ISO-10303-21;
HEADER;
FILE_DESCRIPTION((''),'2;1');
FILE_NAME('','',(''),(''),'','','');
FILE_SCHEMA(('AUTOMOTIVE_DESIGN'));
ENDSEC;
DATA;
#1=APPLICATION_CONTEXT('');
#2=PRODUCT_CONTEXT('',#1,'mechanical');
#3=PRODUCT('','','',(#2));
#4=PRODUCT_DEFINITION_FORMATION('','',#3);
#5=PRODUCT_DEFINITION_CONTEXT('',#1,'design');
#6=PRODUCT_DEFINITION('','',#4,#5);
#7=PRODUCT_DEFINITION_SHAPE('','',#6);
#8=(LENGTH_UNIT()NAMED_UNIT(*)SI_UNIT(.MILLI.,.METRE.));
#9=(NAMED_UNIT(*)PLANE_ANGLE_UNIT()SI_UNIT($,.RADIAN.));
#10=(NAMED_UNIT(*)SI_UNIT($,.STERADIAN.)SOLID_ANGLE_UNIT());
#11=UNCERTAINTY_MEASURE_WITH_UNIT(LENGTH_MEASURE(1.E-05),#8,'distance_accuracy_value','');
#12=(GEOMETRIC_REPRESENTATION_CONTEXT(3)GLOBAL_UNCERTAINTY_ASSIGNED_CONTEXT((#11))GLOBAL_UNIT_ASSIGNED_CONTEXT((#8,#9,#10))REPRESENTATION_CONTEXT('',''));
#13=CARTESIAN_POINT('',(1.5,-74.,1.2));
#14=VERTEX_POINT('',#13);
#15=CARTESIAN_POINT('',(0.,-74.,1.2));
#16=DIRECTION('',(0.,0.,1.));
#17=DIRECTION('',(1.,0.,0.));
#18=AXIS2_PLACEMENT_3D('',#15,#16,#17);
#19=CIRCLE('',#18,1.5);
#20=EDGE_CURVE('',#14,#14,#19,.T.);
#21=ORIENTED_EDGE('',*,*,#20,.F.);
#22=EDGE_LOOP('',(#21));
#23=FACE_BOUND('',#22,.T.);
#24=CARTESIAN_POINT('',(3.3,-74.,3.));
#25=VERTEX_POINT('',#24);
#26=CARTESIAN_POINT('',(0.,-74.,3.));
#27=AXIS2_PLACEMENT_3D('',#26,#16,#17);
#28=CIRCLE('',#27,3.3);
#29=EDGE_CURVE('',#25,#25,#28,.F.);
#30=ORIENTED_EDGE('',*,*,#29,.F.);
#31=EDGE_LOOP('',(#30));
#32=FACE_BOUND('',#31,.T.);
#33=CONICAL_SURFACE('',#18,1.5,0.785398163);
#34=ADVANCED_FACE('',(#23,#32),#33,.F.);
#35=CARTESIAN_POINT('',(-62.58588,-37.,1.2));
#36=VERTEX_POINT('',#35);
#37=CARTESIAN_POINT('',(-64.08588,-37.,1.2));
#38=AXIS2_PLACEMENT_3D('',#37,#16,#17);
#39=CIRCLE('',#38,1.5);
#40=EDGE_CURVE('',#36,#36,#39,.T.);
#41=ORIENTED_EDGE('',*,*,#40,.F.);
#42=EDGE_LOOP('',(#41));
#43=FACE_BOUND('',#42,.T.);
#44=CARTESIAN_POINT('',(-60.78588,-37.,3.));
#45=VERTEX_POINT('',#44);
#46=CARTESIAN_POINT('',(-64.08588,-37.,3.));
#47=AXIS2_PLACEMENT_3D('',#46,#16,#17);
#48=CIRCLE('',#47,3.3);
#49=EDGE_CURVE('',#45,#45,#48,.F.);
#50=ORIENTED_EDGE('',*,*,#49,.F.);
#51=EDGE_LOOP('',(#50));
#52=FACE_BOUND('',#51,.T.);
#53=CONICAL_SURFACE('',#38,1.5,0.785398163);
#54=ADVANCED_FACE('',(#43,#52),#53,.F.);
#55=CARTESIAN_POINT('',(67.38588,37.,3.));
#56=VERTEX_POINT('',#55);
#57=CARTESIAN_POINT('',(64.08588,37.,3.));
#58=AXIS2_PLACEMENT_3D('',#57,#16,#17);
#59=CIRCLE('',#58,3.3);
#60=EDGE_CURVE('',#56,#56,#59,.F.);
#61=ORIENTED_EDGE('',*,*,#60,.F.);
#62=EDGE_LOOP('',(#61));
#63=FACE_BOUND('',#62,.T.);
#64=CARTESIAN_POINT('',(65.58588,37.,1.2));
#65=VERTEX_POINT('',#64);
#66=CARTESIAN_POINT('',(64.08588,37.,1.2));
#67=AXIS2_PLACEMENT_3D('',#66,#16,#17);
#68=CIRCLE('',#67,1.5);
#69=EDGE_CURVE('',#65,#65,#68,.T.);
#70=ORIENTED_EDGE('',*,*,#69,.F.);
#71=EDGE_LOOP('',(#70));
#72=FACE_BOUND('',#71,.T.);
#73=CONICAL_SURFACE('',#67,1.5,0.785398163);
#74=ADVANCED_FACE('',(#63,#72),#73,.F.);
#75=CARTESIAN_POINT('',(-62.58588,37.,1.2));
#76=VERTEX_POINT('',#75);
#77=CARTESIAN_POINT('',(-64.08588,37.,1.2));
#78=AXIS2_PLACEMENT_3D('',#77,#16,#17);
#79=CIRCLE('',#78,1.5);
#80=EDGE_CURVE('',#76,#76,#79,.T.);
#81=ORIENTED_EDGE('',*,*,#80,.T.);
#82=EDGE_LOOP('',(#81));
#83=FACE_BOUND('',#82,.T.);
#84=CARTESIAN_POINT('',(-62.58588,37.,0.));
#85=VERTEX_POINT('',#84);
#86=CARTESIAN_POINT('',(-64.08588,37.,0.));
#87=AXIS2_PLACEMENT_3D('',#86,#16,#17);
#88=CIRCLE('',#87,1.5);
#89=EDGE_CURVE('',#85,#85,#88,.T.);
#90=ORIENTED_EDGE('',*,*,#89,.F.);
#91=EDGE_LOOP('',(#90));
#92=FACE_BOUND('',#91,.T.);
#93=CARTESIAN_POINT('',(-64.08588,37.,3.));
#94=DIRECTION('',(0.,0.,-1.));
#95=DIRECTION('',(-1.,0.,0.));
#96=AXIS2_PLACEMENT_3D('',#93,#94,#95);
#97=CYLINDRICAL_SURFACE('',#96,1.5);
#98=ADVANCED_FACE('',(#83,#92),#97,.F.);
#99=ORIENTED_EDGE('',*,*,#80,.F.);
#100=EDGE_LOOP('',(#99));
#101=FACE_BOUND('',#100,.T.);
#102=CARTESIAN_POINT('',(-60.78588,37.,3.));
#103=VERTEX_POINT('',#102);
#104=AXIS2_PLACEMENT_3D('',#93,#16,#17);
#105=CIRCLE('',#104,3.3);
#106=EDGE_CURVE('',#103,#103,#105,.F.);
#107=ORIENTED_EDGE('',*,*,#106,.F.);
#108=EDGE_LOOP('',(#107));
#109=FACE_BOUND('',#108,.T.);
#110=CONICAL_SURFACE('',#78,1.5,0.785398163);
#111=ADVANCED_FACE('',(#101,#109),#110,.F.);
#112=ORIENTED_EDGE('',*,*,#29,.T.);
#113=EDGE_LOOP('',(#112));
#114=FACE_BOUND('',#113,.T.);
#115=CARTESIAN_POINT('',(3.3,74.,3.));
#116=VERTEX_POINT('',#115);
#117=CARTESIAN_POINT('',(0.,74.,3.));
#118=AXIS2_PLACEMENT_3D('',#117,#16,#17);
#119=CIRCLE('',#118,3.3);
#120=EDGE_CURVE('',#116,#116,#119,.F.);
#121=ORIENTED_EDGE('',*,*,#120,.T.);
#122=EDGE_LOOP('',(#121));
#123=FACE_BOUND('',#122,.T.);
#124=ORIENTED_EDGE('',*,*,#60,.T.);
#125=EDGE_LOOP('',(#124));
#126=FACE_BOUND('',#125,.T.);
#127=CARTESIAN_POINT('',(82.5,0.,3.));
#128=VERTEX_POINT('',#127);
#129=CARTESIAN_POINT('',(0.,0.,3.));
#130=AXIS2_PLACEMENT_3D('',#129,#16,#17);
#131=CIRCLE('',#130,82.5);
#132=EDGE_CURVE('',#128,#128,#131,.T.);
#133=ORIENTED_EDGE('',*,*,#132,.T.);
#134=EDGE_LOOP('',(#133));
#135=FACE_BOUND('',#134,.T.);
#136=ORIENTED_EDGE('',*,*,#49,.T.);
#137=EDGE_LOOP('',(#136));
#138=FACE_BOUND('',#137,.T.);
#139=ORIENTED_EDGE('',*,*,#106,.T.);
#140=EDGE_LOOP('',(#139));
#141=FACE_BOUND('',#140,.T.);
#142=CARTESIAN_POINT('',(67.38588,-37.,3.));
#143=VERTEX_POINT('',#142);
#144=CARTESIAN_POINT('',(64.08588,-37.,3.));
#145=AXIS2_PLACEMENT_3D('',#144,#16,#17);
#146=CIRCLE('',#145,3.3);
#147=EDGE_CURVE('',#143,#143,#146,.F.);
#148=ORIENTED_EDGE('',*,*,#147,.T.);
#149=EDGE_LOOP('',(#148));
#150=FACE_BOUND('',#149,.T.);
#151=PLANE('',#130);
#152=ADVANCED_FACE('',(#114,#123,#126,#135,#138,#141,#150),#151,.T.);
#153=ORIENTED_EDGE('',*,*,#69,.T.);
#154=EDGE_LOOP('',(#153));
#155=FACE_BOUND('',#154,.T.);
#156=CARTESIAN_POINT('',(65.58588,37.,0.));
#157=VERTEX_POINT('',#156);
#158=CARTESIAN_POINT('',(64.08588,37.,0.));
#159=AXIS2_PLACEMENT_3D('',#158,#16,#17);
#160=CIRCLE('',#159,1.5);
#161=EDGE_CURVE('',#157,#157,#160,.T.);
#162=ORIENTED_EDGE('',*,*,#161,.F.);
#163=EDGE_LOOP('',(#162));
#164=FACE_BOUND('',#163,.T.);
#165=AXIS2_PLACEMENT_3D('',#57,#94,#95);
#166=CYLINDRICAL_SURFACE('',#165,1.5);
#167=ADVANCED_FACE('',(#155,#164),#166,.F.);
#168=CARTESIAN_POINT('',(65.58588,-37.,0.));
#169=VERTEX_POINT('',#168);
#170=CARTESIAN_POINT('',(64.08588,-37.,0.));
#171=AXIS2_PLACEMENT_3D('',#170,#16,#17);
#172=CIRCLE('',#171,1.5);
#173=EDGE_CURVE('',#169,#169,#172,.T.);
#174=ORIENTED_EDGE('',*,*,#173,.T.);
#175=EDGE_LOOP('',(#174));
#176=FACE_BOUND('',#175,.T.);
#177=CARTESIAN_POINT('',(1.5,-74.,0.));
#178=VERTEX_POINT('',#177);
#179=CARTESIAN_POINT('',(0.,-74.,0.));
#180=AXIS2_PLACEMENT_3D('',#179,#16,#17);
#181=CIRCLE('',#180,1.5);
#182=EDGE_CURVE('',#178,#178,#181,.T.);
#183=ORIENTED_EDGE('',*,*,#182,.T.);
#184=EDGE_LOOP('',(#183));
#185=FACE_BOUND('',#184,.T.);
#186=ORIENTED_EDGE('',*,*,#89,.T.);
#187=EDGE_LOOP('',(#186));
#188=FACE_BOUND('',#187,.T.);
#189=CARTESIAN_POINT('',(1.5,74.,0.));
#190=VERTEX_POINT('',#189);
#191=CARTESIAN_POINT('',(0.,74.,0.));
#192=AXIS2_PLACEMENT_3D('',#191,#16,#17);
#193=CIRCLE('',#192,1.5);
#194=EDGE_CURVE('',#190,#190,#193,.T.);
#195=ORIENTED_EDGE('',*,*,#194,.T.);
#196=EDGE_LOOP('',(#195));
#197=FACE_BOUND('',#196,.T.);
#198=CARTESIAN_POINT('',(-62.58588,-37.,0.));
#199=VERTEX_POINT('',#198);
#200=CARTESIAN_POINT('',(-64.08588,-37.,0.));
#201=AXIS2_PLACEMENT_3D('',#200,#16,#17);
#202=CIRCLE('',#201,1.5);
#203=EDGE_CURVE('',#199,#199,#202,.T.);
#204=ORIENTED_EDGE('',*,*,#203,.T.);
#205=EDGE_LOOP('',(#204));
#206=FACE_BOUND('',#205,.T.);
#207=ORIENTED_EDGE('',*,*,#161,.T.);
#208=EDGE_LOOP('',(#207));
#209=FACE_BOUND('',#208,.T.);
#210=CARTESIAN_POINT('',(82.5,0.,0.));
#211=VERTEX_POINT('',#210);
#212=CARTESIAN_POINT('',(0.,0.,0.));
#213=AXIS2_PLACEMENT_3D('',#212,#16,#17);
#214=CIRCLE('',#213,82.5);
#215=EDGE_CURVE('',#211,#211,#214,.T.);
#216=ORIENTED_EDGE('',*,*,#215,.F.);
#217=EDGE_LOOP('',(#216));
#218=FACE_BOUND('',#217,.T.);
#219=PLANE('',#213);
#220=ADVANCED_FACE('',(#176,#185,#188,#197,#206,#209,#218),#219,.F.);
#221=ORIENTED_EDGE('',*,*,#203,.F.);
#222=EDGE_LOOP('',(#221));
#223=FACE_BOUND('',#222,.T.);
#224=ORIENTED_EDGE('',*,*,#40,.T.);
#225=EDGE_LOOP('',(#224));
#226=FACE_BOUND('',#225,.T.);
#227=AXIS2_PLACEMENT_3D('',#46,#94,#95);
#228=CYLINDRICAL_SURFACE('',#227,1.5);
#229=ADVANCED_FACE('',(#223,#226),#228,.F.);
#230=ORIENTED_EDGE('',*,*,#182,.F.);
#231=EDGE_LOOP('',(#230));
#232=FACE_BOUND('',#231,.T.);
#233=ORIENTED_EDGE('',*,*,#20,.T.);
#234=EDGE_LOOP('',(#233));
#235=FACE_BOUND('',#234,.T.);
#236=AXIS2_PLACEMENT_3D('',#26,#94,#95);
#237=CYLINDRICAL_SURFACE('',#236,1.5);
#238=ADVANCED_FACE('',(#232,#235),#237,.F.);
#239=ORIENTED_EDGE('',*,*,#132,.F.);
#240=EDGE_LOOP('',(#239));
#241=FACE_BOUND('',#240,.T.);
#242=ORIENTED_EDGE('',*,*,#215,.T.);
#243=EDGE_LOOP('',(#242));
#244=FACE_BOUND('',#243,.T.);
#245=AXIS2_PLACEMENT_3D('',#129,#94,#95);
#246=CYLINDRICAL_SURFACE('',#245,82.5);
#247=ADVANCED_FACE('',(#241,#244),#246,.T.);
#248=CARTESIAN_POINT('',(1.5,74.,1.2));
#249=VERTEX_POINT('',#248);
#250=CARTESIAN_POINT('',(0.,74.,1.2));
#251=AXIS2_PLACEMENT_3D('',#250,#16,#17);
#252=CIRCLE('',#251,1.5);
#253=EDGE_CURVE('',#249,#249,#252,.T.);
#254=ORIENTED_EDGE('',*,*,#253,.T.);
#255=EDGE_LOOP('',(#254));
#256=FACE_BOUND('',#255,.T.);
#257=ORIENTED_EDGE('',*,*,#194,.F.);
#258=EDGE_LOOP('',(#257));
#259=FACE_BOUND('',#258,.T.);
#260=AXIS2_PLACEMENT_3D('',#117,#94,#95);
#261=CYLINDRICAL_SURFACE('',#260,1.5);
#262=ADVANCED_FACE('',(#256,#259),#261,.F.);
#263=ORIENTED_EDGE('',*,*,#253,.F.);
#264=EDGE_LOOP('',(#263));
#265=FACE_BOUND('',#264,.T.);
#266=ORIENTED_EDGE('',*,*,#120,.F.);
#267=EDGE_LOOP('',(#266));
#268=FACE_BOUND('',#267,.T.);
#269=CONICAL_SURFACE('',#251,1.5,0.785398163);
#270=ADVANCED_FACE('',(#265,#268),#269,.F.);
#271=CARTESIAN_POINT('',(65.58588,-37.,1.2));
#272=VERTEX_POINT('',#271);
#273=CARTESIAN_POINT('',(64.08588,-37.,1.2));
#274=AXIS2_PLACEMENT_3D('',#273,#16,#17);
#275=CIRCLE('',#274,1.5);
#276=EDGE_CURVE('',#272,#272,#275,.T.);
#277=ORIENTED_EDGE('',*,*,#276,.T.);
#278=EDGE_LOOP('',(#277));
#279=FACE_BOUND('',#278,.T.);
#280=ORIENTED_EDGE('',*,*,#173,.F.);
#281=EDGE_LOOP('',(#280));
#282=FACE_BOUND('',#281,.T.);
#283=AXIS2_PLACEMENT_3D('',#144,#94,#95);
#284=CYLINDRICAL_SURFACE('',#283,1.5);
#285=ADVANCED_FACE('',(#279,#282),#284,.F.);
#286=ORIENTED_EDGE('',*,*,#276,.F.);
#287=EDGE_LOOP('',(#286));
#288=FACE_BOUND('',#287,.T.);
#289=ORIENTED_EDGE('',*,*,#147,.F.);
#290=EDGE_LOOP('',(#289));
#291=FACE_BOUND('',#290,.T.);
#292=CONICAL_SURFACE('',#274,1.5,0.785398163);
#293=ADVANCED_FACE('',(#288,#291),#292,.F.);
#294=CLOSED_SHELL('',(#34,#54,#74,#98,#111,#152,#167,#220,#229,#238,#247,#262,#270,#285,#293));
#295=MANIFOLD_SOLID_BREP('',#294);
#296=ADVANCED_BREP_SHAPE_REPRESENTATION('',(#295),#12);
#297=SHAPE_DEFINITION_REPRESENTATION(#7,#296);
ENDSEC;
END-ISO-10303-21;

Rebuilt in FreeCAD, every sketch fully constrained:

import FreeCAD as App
import Part
import Sketcher
from FreeCAD import Vector


def edges_at(feature, points):
    """Names of the edges that pass closest to the given points."""
    edges = feature.Shape.Edges
    near = lambda p: min(range(len(edges)), key=lambda i: edges[i].distToShape(Part.Vertex(*p))[0])
    return sorted({f"Edge{near(p) + 1}" for p in points})

doc = App.newDocument("Part")
params = doc.addObject("Spreadsheet::Sheet", "Params")
for row, (alias, value) in enumerate([
    ("sketch1_diameter", "165 mm"),
    ("sketch1_diameter2", "3 mm"),
    ("pad1_length", "3 mm"),
    ("chamfer_size", "1.8 mm"),
], start=1):
    params.set(f"A{row}", alias)
    params.set(f"B{row}", "=" + value)
    params.setAlias(f"B{row}", alias)

body = doc.addObject("PartDesign::Body", "Body")

# Sketch on XY plane
sketch1 = body.newObject("Sketcher::SketchObject", "Sketch")
sketch1.AttachmentSupport = (doc.getObject("XY_Plane"), [""])
sketch1.MapMode = "FlatFace"
sketch1.addGeometry(Part.Circle(Vector(0, 0, 0), Vector(0, 0, 1), 82.5), False)
sketch1.addGeometry(Part.Circle(Vector(-64.1, -37, 0), Vector(0, 0, 1), 1.5), False)
sketch1.addGeometry(Part.Circle(Vector(0, -74, 0), Vector(0, 0, 1), 1.5), False)
sketch1.addGeometry(Part.Circle(Vector(64.1, -37, 0), Vector(0, 0, 1), 1.5), False)
sketch1.addGeometry(Part.Circle(Vector(-64.1, 37, 0), Vector(0, 0, 1), 1.5), False)
sketch1.addGeometry(Part.Circle(Vector(64.1, 37, 0), Vector(0, 0, 1), 1.5), False)
sketch1.addGeometry(Part.Circle(Vector(0, 74, 0), Vector(0, 0, 1), 1.5), False)
sketch1.addConstraint(Sketcher.Constraint("Coincident", 0, 3, -1, 1))
sketch1.addConstraint(Sketcher.Constraint("Equal", 1, 2))
sketch1.addConstraint(Sketcher.Constraint("Equal", 2, 3))
sketch1.addConstraint(Sketcher.Constraint("Equal", 3, 4))
sketch1.addConstraint(Sketcher.Constraint("Equal", 4, 5))
sketch1.addConstraint(Sketcher.Constraint("Equal", 5, 6))
sketch1.addConstraint(Sketcher.Constraint("Symmetric", 3, 3, 4, 3, -1, 1))
sketch1.addConstraint(Sketcher.Constraint("Symmetric", 1, 3, 5, 3, -1, 1))
sketch1.addConstraint(Sketcher.Constraint("Symmetric", 2, 3, 6, 3, -1, 1))
sketch1.addConstraint(Sketcher.Constraint("Symmetric", 1, 3, 3, 3, -2))
sketch1.addConstraint(Sketcher.Constraint("PointOnObject", 2, 3, -2))
sketch1.addConstraint(Sketcher.Constraint("Diameter", 0, 165.0))
sketch1.addConstraint(Sketcher.Constraint("Diameter", 1, 3.0))
sketch1.addConstraint(Sketcher.Constraint("DistanceY", 1, 3, -1, 1, 37.0))
sketch1.addConstraint(Sketcher.Constraint("DistanceY", 2, 3, -1, 1, 74.0))
sketch1.addConstraint(Sketcher.Constraint("DistanceX", 1, 3, -1, 1, 64.08588))
sketch1.setExpression("Constraints[11]", "Params.sketch1_diameter")
sketch1.setExpression("Constraints[12]", "Params.sketch1_diameter2")
pad1 = body.newObject("PartDesign::Pad", "Pad")
pad1.Profile = sketch1
pad1.setExpression("Length", "Params.pad1_length")
doc.recompute()

chamfer = body.newObject("PartDesign::Chamfer", "Chamfer")
chamfer.Base = (pad1, edges_at(pad1, [
    (62.586, 37, 3),
    (62.586, -37, 3),
    (-65.586, -37, 3),
    (-65.586, 37, 3),
    (-1.5, 74, 3),
    (-1.5, -74, 3),
]))
chamfer.setExpression("Size", "Params.chamfer_size")

doc.recompute()
